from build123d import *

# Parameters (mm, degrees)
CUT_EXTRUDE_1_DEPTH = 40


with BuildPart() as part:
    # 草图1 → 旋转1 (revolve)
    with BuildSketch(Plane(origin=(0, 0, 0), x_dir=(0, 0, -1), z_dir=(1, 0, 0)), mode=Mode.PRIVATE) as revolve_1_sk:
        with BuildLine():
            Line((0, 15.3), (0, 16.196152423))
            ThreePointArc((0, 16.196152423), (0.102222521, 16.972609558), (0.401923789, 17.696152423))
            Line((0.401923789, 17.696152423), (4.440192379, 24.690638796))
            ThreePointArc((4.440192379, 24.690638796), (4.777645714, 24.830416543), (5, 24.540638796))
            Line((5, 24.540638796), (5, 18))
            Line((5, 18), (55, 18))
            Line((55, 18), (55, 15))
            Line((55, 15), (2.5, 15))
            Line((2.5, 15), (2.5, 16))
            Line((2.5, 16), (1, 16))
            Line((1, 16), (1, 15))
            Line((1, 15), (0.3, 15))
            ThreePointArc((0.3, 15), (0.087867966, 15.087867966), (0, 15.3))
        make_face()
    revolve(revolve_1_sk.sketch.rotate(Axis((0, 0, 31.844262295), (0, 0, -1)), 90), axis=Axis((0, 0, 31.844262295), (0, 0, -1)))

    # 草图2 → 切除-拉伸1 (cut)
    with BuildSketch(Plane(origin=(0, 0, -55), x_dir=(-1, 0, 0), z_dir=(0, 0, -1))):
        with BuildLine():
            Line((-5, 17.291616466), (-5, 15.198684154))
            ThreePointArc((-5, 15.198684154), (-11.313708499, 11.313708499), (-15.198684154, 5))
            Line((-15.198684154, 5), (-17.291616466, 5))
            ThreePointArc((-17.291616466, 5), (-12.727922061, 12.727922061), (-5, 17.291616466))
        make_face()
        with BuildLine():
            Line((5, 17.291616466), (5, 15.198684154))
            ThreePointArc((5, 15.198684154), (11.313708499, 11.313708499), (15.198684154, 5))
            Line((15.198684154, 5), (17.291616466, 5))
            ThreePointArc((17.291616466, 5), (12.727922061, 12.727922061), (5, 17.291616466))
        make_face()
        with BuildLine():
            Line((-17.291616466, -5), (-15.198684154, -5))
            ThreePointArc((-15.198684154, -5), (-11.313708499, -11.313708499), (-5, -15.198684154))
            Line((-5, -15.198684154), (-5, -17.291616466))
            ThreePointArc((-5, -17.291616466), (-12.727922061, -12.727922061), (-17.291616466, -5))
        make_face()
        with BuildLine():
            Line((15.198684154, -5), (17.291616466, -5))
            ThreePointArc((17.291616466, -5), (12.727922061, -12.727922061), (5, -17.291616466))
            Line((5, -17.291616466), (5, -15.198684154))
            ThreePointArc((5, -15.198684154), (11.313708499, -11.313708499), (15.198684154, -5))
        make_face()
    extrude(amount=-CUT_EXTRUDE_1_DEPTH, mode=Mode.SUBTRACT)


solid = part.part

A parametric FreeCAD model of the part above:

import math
import FreeCAD as App
import Part
import Sketcher
Q = App.Units.Quantity

doc = App.newDocument("Part")
body = doc.addObject("PartDesign::Body", "Body")

sketch1 = body.newObject("Sketcher::SketchObject", "Sketch")
sketch1.AttachmentSupport = (doc.getObject("YZ_Plane"), [""])
sketch1.MapMode = "FlatFace"
sketch1.addGeometry([
    Part.LineSegment(App.Vector(16.2, 0, 0), App.Vector(15.3, 0, 0)),
    Part.ArcOfCircle(Part.Circle(App.Vector(15.3, -0.3, 0), App.Vector(0, 0, 1), 0.3), math.radians(90), math.radians(180)),
    Part.LineSegment(App.Vector(15, -0.3, 0), App.Vector(15, -1, 0)),
    Part.LineSegment(App.Vector(15, -1, 0), App.Vector(16, -1, 0)),
    Part.LineSegment(App.Vector(16, -1, 0), App.Vector(16, -2.5, 0)),
    Part.LineSegment(App.Vector(16, -2.5, 0), App.Vector(15, -2.5, 0)),
    Part.LineSegment(App.Vector(15, -2.5, 0), App.Vector(15, -55, 0)),
    Part.LineSegment(App.Vector(15, -55, 0), App.Vector(18, -55, 0)),
    Part.LineSegment(App.Vector(18, -55, 0), App.Vector(18, -5, 0)),
    Part.LineSegment(App.Vector(18, -5, 0), App.Vector(24.54, -5, 0)),
    Part.ArcOfCircle(Part.Circle(App.Vector(24.54, -4.7, 0), App.Vector(0, 0, 1), 0.3), math.radians(-90), math.radians(60)),
    Part.LineSegment(App.Vector(24.69, -4.44, 0), App.Vector(17.7, -0.4, 0)),
    Part.ArcOfCircle(Part.Circle(App.Vector(16.2, -3, 0), App.Vector(0, 0, 1), 3), math.radians(60), math.radians(90)),
], False)
sketch1.addConstraint([
    Sketcher.Constraint("Tangent", 0, 2, 1, 1),
    Sketcher.Constraint("Tangent", 1, 2, 2, 1),
    Sketcher.Constraint("Coincident", 2, 2, 3, 1),
    Sketcher.Constraint("Coincident", 3, 2, 4, 1),
    Sketcher.Constraint("Coincident", 4, 2, 5, 1),
    Sketcher.Constraint("Coincident", 5, 2, 6, 1),
    Sketcher.Constraint("Coincident", 6, 2, 7, 1),
    Sketcher.Constraint("Coincident", 7, 2, 8, 1),
    Sketcher.Constraint("Coincident", 8, 2, 9, 1),
    Sketcher.Constraint("Tangent", 9, 2, 10, 1),
    Sketcher.Constraint("Tangent", 10, 2, 11, 1),
    Sketcher.Constraint("Tangent", 11, 2, 12, 1),
    Sketcher.Constraint("Tangent", 12, 2, 0, 1),
    Sketcher.Constraint("Horizontal", 0),
    Sketcher.Constraint("Vertical", 2),
    Sketcher.Constraint("Horizontal", 3),
    Sketcher.Constraint("Vertical", 4),
    Sketcher.Constraint("Horizontal", 5),
    Sketcher.Constraint("Vertical", 6),
    Sketcher.Constraint("Horizontal", 7),
    Sketcher.Constraint("Vertical", 8),
    Sketcher.Constraint("Horizontal", 9),
    Sketcher.Constraint("Equal", 1, 10),
    Sketcher.Constraint("PointOnObject", 0, 2, -1),
    Sketcher.Constraint("Vertical", 2, 2, 5, 2),
    Sketcher.Constraint("Radius", 12, 3.0),
    Sketcher.Constraint("Radius", 1, 0.3),
    Sketcher.Constraint("DistanceX", 3, 1, 3, 2, 1.0),
    Sketcher.Constraint("DistanceX", 7, 1, 7, 2, 3.0),
    Sketcher.Constraint("DistanceY", 8, 1, 8, 2, 50.0),
    Sketcher.Constraint("Angle", 11, Q("150 deg")),
    Sketcher.Constraint("DistanceY", 2, 2, 2, 1, 0.7),
    Sketcher.Constraint("DistanceY", 4, 2, 4, 1, 1.5),
    Sketcher.Constraint("DistanceY", 6, 2, 6, 1, 52.5),
    Sketcher.Constraint("DistanceX", -1, 1, 1, 2, 15.0),
    Sketcher.Constraint("DistanceX", 9, 1, 9, 2, 6.540639),
])
revolution = body.newObject("PartDesign::Revolution", "Revolution")
revolution.Profile = sketch1
revolution.ReferenceAxis = (sketch1, ["V_Axis"])
revolution.Angle = 360

sketch2 = body.newObject("Sketcher::SketchObject", "Sketch001")
sketch2.AttachmentSupport = (doc.getObject("XY_Plane"), [""])
sketch2.MapMode = "FlatFace"
sketch2.AttachmentOffset = App.Placement(App.Vector(0, 0, -55), App.Rotation())
sketch2.addGeometry([
    Part.LineSegment(App.Vector(5, 15.2, 0), App.Vector(5, 17.3, 0)),
    Part.ArcOfCircle(Part.Circle(App.Vector(0, 0, 0), App.Vector(0, 0, 1), 18), math.radians(16), math.radians(74)),
    Part.LineSegment(App.Vector(17.3, 5, 0), App.Vector(15.2, 5, 0)),
    Part.ArcOfCircle(Part.Circle(App.Vector(0, 0, 0), App.Vector(0, 0, 1), 16), math.radians(18), math.radians(72)),
    Part.LineSegment(App.Vector(-5, 17.3, 0), App.Vector(-5, 15.2, 0)),
    Part.ArcOfCircle(Part.Circle(App.Vector(0, 0, 0), App.Vector(0, 0, 1), 16), math.radians(108), math.radians(162)),
    Part.LineSegment(App.Vector(-15.2, 5, 0), App.Vector(-17.3, 5, 0)),
    Part.ArcOfCircle(Part.Circle(App.Vector(0, 0, 0), App.Vector(0, 0, 1), 18), math.radians(106), math.radians(164)),
    Part.LineSegment(App.Vector(15.2, -5, 0), App.Vector(17.3, -5, 0)),
    Part.ArcOfCircle(Part.Circle(App.Vector(0, 0, 0), App.Vector(0, 0, 1), 18), math.radians(-74), math.radians(-16)),
    Part.LineSegment(App.Vector(5, -17.3, 0), App.Vector(5, -15.2, 0)),
    Part.ArcOfCircle(Part.Circle(App.Vector(0, 0, 0), App.Vector(0, 0, 1), 16), math.radians(-72), math.radians(-18)),
    Part.LineSegment(App.Vector(-17.3, -5, 0), App.Vector(-15.2, -5, 0)),
    Part.ArcOfCircle(Part.Circle(App.Vector(0, 0, 0), App.Vector(0, 0, 1), 16), math.radians(-162), math.radians(-108)),
    Part.LineSegment(App.Vector(-5, -15.2, 0), App.Vector(-5, -17.3, 0)),
    Part.ArcOfCircle(Part.Circle(App.Vector(0, 0, 0), App.Vector(0, 0, 1), 18), math.radians(-164), math.radians(-106)),
], False)
sketch2.addConstraint([
    Sketcher.Constraint("Coincident", 0, 2, 1, 2),
    Sketcher.Constraint("Coincident", 1, 1, 2, 1),
    Sketcher.Constraint("Coincident", 2, 2, 3, 1),
    Sketcher.Constraint("Coincident", 3, 2, 0, 1),
    Sketcher.Constraint("Coincident", 4, 2, 5, 1),
    Sketcher.Constraint("Coincident", 5, 2, 6, 1),
    Sketcher.Constraint("Coincident", 6, 2, 7, 2),
    Sketcher.Constraint("Coincident", 7, 1, 4, 1),
    Sketcher.Constraint("Coincident", 8, 2, 9, 2),
    Sketcher.Constraint("Coincident", 9, 1, 10, 1),
    Sketcher.Constraint("Coincident", 10, 2, 11, 1),
    Sketcher.Constraint("Coincident", 11, 2, 8, 1),
    Sketcher.Constraint("Coincident", 12, 2, 13, 1),
    Sketcher.Constraint("Coincident", 13, 2, 14, 1),
    Sketcher.Constraint("Coincident", 14, 2, 15, 2),
    Sketcher.Constraint("Coincident", 15, 1, 12, 1),
    Sketcher.Constraint("Vertical", 0),
    Sketcher.Constraint("Horizontal", 2),
    Sketcher.Constraint("Vertical", 4),
    Sketcher.Constraint("Horizontal", 6),
    Sketcher.Constraint("Horizontal", 8),
    Sketcher.Constraint("Vertical", 10),
    Sketcher.Constraint("Horizontal", 12),
    Sketcher.Constraint("Vertical", 14),
    Sketcher.Constraint("Coincident", 1, 3, -1, 1),
    Sketcher.Constraint("Coincident", 3, 3, -1, 1),
    Sketcher.Constraint("Coincident", 5, 3, -1, 1),
    Sketcher.Constraint("Coincident", 7, 3, -1, 1),
    Sketcher.Constraint("Coincident", 9, 3, -1, 1),
    Sketcher.Constraint("Coincident", 11, 3, -1, 1),
    Sketcher.Constraint("Coincident", 13, 3, -1, 1),
    Sketcher.Constraint("Coincident", 15, 3, -1, 1),
    Sketcher.Constraint("Equal", 3, 5),
    Sketcher.Constraint("Equal", 1, 7),
    Sketcher.Constraint("Equal", 7, 9),
    Sketcher.Constraint("Equal", 5, 11),
    Sketcher.Constraint("Equal", 11, 13),
    Sketcher.Constraint("Equal", 9, 15),
    Sketcher.Constraint("Horizontal", 3, 2, 4, 2),
    Sketcher.Constraint("Horizontal", 2, 2, 5, 2),
    Sketcher.Constraint("Horizontal", 11, 2, 12, 2),
    Sketcher.Constraint("Horizontal", 10, 2, 13, 2),
    Sketcher.Constraint("Vertical", 1, 1, 8, 2),
    Sketcher.Constraint("Vertical", 3, 2, 9, 1),
    Sketcher.Constraint("Equal", 12, 0),
    Sketcher.Constraint("Radius", 1, 18.0),
    Sketcher.Constraint("Radius", 3, 16.0),
    Sketcher.Constraint("DistanceX", -1, 1, 0, 2, 5.0),
])
pocket1 = body.newObject("PartDesign::Pocket", "Pocket")
pocket1.Profile = sketch2
pocket1.Length = 40
pocket1.Reversed = True

doc.recompute()
